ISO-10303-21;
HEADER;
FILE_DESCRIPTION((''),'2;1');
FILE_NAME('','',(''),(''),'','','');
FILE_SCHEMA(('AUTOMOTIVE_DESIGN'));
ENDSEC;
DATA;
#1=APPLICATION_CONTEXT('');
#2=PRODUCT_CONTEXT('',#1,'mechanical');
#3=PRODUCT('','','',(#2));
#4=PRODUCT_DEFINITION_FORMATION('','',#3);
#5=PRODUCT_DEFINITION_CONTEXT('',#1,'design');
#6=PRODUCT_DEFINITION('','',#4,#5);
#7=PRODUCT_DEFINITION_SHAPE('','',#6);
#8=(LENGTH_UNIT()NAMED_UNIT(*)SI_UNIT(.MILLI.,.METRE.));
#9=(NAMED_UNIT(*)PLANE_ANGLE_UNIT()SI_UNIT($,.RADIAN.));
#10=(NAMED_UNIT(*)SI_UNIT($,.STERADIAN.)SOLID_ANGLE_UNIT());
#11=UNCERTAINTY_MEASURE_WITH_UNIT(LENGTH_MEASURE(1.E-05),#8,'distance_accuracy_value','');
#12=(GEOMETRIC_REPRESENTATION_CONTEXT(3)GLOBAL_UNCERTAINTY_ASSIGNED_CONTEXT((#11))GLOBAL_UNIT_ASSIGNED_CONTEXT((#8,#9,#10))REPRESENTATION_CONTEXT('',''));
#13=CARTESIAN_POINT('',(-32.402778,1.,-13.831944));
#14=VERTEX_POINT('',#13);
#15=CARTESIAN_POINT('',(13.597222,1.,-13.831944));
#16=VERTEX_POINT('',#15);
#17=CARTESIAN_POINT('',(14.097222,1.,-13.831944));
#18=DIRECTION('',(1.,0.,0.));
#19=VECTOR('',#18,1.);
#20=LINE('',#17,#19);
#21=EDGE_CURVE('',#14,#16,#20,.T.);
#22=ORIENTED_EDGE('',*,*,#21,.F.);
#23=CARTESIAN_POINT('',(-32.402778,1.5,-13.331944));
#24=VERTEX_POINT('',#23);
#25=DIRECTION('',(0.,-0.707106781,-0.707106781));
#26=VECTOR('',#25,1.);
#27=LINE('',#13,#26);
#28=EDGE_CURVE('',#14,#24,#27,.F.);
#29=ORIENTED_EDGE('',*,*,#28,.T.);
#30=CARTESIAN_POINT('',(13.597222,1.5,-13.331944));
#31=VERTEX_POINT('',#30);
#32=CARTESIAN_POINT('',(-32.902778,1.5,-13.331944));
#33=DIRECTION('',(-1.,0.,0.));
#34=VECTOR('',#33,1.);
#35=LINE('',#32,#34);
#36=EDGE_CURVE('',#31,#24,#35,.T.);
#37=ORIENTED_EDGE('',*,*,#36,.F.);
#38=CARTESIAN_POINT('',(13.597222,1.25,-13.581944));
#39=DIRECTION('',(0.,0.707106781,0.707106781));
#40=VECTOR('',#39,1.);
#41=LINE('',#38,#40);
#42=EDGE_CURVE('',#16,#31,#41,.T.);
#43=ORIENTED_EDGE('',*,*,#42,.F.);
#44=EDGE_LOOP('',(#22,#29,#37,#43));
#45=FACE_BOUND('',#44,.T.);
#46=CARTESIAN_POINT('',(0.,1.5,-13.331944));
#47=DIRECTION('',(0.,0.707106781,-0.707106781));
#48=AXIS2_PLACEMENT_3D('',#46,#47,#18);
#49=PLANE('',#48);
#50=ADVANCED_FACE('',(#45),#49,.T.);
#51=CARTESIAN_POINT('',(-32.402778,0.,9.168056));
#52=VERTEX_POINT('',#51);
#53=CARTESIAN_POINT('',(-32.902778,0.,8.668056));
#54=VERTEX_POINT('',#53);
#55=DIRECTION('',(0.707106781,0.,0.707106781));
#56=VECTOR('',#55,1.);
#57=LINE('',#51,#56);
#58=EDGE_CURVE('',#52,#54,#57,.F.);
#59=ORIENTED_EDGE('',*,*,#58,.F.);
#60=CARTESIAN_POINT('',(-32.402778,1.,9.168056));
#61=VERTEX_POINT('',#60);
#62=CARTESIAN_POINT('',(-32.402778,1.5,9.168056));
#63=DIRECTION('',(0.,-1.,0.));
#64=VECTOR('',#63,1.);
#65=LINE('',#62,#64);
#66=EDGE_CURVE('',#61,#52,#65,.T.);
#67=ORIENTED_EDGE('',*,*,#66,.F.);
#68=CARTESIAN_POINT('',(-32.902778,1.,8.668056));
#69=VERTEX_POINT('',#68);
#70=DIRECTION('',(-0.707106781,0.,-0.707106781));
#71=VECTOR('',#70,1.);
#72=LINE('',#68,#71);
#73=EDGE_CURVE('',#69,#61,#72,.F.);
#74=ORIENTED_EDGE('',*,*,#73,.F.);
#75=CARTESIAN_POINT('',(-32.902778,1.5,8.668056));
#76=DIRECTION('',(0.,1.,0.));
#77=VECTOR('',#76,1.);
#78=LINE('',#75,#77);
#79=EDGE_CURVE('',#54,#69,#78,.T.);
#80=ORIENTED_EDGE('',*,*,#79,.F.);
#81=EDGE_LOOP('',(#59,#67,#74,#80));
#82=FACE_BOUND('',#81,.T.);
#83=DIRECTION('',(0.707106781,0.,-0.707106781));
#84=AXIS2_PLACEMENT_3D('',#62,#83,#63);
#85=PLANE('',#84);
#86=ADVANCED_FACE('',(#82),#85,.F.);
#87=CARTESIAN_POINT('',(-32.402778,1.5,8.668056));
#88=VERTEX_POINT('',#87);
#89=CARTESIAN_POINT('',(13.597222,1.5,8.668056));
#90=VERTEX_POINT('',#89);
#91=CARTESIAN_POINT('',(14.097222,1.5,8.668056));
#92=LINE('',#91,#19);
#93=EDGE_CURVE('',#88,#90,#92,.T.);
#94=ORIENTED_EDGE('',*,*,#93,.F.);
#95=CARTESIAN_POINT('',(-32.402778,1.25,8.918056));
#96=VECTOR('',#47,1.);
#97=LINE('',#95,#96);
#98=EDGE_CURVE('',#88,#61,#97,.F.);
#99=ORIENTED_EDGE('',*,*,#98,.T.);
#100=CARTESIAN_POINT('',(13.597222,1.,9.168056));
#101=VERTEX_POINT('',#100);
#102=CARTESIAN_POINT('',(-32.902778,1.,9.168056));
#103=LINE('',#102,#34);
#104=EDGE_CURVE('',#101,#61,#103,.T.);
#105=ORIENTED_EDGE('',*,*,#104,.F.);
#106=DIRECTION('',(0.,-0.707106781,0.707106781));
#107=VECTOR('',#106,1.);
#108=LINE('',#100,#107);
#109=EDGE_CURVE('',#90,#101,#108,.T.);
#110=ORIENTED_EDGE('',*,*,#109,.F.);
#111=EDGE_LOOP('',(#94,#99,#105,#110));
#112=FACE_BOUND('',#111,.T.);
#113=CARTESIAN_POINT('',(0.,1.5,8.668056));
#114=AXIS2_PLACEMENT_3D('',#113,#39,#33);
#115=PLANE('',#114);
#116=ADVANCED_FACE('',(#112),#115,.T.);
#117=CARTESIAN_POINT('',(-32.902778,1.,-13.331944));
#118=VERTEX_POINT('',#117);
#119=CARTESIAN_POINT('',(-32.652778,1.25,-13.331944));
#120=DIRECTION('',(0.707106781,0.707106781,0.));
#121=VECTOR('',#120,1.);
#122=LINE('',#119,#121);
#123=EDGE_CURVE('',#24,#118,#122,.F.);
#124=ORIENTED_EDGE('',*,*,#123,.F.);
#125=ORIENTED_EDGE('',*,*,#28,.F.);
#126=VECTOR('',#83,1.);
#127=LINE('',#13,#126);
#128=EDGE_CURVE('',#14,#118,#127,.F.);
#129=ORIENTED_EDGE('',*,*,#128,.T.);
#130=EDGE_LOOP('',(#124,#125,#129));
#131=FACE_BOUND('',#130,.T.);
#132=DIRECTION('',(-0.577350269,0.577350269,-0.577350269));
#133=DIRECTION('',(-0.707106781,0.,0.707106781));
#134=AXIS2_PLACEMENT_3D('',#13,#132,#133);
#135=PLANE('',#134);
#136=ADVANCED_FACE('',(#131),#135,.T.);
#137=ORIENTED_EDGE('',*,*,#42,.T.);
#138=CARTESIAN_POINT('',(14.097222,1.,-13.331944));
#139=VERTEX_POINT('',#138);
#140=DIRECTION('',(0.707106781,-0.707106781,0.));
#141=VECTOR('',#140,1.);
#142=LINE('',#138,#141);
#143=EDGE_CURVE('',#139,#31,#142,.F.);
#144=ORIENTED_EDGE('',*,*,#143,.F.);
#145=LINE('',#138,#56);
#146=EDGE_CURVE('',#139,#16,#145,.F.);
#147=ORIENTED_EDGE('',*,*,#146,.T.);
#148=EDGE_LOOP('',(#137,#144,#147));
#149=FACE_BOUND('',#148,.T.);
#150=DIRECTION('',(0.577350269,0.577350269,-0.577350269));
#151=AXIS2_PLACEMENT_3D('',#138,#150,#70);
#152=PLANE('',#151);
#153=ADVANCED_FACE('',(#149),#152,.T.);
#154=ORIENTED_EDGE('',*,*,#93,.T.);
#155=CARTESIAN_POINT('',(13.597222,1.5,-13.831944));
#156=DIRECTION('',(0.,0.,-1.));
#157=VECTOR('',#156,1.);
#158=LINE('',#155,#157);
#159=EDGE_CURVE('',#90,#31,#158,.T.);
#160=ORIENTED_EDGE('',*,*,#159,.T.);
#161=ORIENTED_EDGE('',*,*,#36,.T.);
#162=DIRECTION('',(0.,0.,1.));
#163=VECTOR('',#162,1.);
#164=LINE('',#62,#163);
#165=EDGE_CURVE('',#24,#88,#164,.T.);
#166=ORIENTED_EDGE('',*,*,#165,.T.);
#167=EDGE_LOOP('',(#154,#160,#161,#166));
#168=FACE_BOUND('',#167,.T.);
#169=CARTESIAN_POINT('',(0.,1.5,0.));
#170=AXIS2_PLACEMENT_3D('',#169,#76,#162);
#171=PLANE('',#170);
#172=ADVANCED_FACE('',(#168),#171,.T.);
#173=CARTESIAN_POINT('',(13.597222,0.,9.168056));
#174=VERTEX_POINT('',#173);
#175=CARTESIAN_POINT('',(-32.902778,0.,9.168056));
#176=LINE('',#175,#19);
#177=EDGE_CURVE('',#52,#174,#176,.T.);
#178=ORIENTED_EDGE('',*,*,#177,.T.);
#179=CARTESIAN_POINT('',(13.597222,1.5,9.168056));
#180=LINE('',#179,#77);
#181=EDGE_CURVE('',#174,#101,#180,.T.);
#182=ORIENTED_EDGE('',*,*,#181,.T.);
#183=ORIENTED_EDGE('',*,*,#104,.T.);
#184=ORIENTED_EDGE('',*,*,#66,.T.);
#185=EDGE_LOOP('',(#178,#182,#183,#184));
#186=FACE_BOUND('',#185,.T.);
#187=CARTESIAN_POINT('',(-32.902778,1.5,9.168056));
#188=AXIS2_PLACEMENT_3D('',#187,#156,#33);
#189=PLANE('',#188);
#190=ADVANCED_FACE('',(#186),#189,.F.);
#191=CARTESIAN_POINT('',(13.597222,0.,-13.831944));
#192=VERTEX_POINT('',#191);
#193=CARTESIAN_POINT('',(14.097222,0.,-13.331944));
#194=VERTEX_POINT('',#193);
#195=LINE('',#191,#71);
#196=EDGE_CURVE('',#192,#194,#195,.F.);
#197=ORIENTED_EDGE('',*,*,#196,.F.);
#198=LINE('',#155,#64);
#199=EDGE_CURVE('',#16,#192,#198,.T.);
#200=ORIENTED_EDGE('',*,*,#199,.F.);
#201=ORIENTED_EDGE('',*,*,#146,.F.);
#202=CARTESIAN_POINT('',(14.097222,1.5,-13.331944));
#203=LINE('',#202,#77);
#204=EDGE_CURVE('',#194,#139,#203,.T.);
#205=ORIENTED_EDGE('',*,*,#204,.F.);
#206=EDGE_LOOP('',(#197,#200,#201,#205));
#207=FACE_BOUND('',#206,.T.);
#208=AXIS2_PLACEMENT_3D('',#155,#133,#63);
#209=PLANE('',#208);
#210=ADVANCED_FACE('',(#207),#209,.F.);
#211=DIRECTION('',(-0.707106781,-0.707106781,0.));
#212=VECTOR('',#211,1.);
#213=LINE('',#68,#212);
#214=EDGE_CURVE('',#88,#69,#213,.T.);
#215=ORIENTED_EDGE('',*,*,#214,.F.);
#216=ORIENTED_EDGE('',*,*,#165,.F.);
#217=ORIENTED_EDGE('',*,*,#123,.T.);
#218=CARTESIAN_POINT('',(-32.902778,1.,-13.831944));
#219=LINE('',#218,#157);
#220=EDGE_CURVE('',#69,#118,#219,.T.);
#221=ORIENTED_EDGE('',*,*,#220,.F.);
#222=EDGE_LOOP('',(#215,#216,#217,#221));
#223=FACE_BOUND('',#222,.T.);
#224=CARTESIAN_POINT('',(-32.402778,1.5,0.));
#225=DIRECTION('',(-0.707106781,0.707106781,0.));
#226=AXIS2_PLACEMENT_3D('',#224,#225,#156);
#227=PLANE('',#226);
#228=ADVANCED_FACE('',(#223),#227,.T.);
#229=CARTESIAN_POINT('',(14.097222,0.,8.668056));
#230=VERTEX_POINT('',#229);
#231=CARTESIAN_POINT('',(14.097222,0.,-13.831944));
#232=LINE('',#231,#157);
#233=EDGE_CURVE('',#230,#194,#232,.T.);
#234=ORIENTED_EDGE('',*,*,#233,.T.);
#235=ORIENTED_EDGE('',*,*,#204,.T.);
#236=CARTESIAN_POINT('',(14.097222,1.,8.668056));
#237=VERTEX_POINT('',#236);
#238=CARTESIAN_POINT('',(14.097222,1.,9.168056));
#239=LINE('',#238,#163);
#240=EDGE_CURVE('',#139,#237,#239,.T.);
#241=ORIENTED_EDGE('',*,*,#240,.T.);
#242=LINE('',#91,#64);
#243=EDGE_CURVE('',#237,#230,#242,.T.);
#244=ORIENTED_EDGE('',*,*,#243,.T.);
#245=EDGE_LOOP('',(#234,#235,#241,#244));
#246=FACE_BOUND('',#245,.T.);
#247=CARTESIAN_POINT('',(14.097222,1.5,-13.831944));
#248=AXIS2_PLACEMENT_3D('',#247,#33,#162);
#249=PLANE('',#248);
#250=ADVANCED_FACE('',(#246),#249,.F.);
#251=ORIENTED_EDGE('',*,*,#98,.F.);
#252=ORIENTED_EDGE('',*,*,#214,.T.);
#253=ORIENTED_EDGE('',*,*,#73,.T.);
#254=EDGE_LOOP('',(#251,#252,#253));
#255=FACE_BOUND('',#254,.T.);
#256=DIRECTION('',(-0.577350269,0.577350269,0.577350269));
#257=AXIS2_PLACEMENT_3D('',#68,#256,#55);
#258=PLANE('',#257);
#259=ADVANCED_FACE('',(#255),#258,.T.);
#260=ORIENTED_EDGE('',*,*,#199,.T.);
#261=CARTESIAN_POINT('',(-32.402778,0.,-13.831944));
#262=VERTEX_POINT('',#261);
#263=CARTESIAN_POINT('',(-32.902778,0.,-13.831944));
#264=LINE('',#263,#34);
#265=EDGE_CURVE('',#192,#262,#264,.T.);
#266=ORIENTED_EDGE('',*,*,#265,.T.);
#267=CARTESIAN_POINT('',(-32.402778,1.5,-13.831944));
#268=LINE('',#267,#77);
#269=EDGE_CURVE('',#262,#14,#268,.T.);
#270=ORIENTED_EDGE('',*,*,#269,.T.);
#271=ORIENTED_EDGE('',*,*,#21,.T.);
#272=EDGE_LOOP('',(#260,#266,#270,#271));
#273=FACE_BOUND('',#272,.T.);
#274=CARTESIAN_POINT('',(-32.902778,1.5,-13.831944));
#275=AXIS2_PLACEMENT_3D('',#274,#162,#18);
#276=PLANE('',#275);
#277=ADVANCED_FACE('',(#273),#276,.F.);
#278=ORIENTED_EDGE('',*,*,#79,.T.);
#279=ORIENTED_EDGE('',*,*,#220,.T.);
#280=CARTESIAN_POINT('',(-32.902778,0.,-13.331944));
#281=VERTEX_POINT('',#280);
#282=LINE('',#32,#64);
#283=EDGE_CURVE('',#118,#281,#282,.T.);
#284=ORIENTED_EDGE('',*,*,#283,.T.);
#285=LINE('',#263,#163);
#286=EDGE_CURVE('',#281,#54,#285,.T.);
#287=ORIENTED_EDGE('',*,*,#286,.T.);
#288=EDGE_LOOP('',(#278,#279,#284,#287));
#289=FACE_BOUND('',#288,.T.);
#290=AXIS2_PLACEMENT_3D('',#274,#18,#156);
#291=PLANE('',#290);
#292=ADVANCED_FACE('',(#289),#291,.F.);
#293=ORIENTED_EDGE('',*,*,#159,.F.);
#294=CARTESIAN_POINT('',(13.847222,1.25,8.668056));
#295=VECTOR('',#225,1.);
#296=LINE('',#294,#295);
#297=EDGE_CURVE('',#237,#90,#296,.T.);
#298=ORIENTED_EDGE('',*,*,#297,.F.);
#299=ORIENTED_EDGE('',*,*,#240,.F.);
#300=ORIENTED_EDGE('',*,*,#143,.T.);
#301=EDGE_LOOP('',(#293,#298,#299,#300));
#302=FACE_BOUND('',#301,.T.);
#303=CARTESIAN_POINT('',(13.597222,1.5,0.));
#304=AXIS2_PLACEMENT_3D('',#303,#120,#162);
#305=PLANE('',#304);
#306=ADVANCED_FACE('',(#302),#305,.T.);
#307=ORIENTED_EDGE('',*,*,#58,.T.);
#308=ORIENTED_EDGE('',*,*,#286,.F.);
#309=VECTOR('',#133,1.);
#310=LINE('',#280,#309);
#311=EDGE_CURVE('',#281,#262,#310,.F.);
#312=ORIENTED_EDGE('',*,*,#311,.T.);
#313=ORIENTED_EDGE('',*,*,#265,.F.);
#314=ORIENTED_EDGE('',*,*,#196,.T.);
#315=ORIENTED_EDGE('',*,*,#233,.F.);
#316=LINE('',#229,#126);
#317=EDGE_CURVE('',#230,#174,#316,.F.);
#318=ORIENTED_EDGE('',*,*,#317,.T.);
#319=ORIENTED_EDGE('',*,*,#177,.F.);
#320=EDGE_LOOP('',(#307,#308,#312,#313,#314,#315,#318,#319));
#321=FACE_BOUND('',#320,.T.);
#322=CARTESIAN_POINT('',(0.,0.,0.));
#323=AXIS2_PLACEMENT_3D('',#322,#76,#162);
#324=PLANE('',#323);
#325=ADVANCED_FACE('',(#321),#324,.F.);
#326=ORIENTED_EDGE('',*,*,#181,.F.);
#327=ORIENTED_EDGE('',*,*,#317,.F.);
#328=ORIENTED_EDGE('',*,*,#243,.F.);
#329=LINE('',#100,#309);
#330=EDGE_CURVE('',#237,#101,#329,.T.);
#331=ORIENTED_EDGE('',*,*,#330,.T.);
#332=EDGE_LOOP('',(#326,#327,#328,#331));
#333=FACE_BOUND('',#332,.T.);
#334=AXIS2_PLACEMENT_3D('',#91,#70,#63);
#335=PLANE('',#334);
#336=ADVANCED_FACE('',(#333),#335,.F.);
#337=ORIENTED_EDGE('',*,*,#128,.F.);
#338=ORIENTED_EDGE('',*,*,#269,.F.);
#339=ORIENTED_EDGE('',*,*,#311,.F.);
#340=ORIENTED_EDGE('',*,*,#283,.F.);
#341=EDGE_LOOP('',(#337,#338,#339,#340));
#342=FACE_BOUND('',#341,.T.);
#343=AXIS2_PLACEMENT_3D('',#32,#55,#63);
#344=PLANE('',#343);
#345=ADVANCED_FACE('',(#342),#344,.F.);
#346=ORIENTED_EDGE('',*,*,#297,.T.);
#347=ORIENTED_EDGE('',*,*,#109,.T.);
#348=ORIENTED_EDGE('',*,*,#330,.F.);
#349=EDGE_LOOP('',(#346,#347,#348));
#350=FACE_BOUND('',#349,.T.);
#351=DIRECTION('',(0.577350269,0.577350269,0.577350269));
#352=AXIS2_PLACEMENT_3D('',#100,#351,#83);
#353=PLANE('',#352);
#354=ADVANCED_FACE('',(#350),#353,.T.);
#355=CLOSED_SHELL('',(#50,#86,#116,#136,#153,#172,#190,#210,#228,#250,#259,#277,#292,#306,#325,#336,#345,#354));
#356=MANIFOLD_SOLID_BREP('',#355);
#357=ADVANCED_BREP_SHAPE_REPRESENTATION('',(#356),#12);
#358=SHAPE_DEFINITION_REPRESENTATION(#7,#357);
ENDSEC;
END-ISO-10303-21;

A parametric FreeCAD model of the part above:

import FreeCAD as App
import Part
import Sketcher
from FreeCAD import Vector
Q = App.Units.Quantity


def edges_at(feature, points):
    """Names of the edges that pass closest to the given points."""
    edges = feature.Shape.Edges
    near = lambda p: min(range(len(edges)), key=lambda i: edges[i].distToShape(Part.Vertex(*p))[0])
    return sorted({f"Edge{near(p) + 1}" for p in points})


def add_polygon(sketch, points):
    """Adds a closed chain of lines whose ends are joined by coincident constraints."""
    first, n = sketch.GeometryCount, len(points)
    for a, b in zip(points, points[1:] + points[:1]):
        sketch.addGeometry(Part.LineSegment(App.Vector(*a, 0), App.Vector(*b, 0)), False)
    for i in range(n):
        sketch.addConstraint(Sketcher.Constraint("Coincident", first + i, 2, first + (i + 1) % n, 1))

doc = App.newDocument("Part")
body = doc.addObject("PartDesign::Body", "Body")

# Sketch on XZ plane
sketch1 = body.newObject("Sketcher::SketchObject", "Sketch")
sketch1.AttachmentSupport = (doc.getObject("XZ_Plane"), [""])
sketch1.MapMode = "FlatFace"
add_polygon(sketch1, [(-33, -14), (-33, 9), (14, 9), (14, -14)])  # lines 0-3
sketch1.addConstraint(Sketcher.Constraint("Vertical", 0))
sketch1.addConstraint(Sketcher.Constraint("Horizontal", 1))
sketch1.addConstraint(Sketcher.Constraint("Vertical", 2))
sketch1.addConstraint(Sketcher.Constraint("Horizontal", 3))
sketch1.addConstraint(Sketcher.Constraint("DistanceX", 1, 1, 1, 2, Q("47 mm")))
sketch1.addConstraint(Sketcher.Constraint("DistanceY", 0, 1, 0, 2, Q("23 mm")))
sketch1.addConstraint(Sketcher.Constraint("DistanceX", 0, 2, -1, 1, Q("32.902778 mm")))
sketch1.addConstraint(Sketcher.Constraint("DistanceY", -1, 1, 0, 2, Q("9.168056 mm")))
pad1 = body.newObject("PartDesign::Pad", "Pad")
pad1.Profile = sketch1
pad1.Length = 1.5
pad1.Reversed = True
doc.recompute()

chamfer = body.newObject("PartDesign::Chamfer", "Chamfer")
chamfer.Base = (pad1, edges_at(pad1, [
    (14.097, 1.5, -2.332),
    (-9.403, 1.5, -13.832),
    (-32.903, 1.5, -2.332),
    (-32.903, 0.75, -13.832),
    (14.097, 0.75, -13.832),
    (14.097, 0.75, 9.168),
    (-32.903, 0.75, 9.168),
    (-9.403, 1.5, 9.168),
]))
chamfer.Size = 0.5

doc.recompute()
